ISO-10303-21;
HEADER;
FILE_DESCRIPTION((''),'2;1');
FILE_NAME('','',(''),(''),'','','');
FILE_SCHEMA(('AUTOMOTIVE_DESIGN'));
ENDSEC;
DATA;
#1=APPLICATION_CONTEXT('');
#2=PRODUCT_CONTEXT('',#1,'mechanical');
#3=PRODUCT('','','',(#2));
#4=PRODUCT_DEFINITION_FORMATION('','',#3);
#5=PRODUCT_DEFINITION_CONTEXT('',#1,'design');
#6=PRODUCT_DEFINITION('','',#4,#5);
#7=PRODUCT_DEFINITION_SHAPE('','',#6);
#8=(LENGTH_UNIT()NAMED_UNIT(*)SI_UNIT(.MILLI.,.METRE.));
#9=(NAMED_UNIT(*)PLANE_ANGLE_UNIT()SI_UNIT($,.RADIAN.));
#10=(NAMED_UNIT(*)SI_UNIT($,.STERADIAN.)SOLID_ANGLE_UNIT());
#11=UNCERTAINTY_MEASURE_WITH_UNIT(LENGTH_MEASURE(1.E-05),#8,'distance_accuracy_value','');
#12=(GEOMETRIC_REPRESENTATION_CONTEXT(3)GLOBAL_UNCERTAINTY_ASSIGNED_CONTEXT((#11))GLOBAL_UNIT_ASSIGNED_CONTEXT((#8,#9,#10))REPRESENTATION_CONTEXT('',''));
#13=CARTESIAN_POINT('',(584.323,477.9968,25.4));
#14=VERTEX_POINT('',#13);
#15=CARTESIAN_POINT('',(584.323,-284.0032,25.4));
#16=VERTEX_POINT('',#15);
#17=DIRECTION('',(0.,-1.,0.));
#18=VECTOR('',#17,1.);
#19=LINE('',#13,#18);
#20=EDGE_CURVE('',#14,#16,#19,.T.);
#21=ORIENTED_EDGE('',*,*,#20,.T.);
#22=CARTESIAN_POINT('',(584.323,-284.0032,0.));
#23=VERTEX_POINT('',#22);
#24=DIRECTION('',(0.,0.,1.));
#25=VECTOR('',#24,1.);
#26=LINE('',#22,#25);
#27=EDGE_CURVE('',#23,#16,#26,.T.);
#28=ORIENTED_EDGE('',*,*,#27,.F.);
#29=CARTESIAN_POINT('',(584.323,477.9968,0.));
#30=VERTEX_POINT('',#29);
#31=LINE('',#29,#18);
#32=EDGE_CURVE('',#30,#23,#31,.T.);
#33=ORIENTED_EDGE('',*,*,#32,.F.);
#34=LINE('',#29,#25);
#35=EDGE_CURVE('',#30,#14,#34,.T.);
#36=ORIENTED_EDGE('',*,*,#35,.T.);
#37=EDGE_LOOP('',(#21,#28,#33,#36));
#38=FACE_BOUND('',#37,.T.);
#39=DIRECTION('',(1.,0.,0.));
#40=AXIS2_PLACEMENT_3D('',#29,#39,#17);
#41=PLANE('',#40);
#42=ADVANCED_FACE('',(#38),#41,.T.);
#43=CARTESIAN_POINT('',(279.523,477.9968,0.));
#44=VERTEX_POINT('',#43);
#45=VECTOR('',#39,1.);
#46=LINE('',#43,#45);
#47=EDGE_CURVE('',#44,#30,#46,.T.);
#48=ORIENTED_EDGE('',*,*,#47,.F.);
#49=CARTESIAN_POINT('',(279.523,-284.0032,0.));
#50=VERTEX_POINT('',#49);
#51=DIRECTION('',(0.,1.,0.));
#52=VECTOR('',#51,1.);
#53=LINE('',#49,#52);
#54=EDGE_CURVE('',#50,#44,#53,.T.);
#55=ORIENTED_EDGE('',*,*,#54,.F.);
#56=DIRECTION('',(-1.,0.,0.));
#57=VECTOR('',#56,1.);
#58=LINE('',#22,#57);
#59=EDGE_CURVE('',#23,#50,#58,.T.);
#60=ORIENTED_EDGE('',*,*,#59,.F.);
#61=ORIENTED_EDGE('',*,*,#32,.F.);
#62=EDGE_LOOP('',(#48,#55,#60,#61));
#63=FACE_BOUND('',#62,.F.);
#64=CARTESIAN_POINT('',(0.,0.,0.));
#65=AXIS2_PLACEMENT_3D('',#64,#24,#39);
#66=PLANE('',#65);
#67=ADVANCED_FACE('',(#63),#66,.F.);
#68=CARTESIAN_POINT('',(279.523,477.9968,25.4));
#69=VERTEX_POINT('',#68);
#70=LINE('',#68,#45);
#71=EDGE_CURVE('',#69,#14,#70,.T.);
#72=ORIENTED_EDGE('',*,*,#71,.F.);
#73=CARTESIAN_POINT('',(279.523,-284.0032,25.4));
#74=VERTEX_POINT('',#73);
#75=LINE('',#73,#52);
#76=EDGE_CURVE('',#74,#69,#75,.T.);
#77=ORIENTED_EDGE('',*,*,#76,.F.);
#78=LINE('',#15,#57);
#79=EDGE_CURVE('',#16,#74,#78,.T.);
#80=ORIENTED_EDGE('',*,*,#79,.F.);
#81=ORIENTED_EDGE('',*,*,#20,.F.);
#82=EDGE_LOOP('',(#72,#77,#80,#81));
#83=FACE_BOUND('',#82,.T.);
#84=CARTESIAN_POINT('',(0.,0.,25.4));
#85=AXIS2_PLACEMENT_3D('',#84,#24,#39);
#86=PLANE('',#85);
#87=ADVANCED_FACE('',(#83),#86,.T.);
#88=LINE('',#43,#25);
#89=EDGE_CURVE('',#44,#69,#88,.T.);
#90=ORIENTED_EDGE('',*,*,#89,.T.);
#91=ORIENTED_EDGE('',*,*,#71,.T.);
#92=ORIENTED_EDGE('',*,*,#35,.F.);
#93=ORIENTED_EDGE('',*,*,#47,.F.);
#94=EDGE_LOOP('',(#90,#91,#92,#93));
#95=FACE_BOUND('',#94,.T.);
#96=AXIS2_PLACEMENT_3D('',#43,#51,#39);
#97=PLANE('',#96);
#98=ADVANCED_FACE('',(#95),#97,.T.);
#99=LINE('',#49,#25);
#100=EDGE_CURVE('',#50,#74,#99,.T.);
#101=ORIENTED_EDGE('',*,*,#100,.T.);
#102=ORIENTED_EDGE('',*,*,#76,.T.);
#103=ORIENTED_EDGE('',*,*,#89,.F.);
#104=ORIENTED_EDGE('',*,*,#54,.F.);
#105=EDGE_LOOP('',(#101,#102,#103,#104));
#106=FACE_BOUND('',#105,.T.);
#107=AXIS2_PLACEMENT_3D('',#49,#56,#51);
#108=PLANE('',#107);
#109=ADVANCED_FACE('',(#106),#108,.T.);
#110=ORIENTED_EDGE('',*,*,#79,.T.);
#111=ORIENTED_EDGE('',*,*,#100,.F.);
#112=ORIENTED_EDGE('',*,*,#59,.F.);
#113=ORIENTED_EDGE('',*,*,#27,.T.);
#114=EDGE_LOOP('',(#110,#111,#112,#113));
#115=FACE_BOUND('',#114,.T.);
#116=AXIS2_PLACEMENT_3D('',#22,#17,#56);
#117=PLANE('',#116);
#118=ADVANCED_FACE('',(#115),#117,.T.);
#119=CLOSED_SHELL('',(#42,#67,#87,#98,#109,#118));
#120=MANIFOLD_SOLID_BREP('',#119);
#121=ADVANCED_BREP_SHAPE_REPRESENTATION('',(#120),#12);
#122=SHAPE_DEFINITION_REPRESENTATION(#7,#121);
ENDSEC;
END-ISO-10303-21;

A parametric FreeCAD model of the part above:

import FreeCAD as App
import Part
import Sketcher
from FreeCAD import Vector
Q = App.Units.Quantity

doc = App.newDocument("Part")
body = doc.addObject("PartDesign::Body", "Body")

# Sketch on XY plane
sketch1 = body.newObject("Sketcher::SketchObject", "Sketch")
sketch1.AttachmentSupport = (doc.getObject("XY_Plane"), [""])
sketch1.MapMode = "FlatFace"
sketch1.addGeometry([
    Part.LineSegment(Vector(584.323, 477.9968, 0), Vector(279.523, 477.9968, 0)),
    Part.LineSegment(Vector(279.523, 477.9968, 0), Vector(279.523, -284.0032, 0)),
    Part.LineSegment(Vector(279.523, -284.0032, 0), Vector(584.323, -284.0032, 0)),
    Part.LineSegment(Vector(584.323, -284.0032, 0), Vector(584.323, 477.9968, 0)),
], False)
sketch1.addConstraint([
    Sketcher.Constraint("Coincident", 0, 2, 1, 1),
    Sketcher.Constraint("Coincident", 1, 2, 2, 1),
    Sketcher.Constraint("Coincident", 2, 2, 3, 1),
    Sketcher.Constraint("Coincident", 3, 2, 0, 1),
    Sketcher.Constraint("Horizontal", 0),
    Sketcher.Constraint("Vertical", 1),
    Sketcher.Constraint("Horizontal", 2),
    Sketcher.Constraint("Vertical", 3),
    Sketcher.Constraint("DistanceX", 0, 2, 0, 1, Q("12 in")),
    Sketcher.Constraint("DistanceY", 1, 2, 1, 1, Q("30 in")),
    Sketcher.Constraint("DistanceX", -1, 1, 0, 2, Q("279.523 mm")),
    Sketcher.Constraint("DistanceY", -1, 1, 0, 2, Q("477.9968 mm")),
])
pad1 = body.newObject("PartDesign::Pad", "Pad")
pad1.Profile = sketch1
pad1.Length = Q("1 in")

doc.recompute()
